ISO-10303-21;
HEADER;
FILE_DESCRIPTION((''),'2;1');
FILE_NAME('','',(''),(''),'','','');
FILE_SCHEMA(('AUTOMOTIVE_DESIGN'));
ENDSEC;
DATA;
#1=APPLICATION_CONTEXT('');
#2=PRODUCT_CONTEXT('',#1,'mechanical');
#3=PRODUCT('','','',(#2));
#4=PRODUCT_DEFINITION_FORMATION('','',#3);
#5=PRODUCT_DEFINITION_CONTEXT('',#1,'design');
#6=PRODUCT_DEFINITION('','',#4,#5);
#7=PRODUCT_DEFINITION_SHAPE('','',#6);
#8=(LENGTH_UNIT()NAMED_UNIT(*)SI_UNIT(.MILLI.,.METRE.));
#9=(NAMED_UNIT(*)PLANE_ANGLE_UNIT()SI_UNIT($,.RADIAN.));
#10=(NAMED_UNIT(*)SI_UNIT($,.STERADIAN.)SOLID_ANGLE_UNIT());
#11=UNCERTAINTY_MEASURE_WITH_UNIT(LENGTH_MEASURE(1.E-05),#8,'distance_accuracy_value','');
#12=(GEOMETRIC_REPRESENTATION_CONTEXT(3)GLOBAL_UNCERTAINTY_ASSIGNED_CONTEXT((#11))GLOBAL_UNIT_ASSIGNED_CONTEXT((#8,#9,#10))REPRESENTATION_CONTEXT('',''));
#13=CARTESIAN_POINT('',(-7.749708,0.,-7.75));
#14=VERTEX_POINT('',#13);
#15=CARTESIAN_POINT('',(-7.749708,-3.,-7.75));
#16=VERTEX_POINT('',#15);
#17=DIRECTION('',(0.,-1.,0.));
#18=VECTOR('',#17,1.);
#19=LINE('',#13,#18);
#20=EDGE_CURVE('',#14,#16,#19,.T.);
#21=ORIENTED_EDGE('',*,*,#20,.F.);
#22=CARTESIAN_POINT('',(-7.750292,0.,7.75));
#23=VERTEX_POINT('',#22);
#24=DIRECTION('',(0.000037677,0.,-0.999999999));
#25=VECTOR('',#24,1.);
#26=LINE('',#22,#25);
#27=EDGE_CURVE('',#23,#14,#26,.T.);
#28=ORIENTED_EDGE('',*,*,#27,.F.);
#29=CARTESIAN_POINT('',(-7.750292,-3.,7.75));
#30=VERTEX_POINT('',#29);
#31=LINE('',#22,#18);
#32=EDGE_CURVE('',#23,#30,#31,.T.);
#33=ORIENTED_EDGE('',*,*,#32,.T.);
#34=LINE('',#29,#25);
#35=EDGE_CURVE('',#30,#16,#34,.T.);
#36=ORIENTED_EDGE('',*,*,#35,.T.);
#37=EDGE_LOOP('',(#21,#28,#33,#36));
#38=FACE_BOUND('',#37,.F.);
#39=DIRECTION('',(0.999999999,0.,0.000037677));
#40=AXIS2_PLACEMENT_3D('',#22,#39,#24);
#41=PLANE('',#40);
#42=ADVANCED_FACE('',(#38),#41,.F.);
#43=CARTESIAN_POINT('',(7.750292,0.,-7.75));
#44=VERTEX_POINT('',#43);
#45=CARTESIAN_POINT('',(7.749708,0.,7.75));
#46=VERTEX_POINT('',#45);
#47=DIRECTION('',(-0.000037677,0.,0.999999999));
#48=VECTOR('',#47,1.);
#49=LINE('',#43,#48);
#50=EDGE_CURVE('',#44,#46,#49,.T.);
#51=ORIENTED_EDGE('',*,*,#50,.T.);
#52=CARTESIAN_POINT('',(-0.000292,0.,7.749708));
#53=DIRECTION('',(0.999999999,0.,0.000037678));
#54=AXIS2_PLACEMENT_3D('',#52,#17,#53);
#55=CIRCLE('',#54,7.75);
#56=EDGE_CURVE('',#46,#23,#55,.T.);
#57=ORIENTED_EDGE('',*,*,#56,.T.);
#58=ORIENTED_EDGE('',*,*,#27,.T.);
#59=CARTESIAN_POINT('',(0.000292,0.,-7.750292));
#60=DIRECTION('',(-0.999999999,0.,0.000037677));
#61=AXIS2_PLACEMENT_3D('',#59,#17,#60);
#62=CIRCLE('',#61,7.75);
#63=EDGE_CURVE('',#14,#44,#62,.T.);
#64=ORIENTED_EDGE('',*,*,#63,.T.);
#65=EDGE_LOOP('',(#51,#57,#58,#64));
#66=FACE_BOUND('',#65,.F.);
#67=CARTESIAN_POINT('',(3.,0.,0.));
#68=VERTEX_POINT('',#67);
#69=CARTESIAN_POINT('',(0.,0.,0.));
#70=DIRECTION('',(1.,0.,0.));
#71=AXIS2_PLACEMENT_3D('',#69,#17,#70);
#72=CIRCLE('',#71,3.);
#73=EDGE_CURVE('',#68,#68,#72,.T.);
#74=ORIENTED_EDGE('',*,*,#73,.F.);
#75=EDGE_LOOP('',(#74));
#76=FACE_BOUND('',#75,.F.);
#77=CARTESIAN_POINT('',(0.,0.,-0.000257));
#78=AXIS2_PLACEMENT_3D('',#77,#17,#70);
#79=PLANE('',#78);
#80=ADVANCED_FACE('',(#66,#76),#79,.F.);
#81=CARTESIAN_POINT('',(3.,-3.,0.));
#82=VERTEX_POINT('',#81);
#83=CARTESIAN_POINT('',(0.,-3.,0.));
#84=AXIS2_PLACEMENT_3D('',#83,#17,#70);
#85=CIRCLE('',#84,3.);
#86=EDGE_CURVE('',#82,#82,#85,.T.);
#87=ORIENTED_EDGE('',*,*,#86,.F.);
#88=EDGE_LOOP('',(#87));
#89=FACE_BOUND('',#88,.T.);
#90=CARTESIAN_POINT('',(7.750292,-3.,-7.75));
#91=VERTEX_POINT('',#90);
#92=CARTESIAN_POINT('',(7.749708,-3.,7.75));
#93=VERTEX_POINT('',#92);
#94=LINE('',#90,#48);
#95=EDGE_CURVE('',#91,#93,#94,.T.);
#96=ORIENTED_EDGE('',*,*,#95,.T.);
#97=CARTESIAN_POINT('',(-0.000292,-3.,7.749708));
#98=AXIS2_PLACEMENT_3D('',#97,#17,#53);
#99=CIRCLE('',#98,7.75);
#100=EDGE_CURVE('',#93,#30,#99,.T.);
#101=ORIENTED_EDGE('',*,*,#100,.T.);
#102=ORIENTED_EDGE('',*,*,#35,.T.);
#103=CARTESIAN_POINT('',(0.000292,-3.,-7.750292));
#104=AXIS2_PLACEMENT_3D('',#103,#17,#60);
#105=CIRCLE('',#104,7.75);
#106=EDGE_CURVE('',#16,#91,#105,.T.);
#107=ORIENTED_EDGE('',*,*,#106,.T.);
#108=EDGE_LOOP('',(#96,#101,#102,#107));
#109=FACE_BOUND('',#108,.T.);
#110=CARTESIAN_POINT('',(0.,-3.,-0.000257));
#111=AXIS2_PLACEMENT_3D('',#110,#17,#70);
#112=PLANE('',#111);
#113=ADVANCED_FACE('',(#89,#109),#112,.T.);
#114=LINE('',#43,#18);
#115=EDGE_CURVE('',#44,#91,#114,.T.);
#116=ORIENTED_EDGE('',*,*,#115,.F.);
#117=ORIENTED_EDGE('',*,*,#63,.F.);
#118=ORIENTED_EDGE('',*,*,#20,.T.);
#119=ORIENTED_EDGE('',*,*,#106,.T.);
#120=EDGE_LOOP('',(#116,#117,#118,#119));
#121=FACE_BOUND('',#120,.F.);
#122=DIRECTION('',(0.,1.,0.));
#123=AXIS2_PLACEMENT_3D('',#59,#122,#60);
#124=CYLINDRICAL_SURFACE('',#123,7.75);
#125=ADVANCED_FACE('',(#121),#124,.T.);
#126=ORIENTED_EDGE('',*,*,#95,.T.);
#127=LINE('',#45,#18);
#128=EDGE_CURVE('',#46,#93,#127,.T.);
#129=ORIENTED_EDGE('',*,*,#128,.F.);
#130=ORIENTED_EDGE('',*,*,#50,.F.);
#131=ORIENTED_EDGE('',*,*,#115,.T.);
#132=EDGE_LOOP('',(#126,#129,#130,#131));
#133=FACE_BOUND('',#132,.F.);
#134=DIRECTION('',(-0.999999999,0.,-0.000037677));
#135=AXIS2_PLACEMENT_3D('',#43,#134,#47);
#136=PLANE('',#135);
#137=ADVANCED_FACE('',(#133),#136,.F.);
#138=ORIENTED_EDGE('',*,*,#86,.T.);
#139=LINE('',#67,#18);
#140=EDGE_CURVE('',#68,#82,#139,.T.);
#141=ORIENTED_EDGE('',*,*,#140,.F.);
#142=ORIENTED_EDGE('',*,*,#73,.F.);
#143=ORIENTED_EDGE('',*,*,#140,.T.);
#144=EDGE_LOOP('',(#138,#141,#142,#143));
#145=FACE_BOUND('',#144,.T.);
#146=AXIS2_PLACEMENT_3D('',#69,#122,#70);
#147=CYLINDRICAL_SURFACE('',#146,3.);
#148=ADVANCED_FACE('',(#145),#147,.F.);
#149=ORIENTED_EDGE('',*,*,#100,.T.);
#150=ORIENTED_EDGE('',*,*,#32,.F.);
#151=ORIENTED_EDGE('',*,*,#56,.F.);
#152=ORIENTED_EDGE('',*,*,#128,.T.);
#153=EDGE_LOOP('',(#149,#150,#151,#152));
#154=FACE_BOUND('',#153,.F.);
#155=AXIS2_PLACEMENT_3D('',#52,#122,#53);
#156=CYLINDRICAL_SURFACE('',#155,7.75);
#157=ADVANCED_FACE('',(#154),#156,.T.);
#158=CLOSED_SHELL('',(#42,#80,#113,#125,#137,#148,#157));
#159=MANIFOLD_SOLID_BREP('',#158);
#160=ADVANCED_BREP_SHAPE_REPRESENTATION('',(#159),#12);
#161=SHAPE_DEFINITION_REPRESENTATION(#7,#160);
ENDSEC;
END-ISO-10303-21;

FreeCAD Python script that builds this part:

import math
import FreeCAD as App
import Part
import Sketcher
from FreeCAD import Vector

doc = App.newDocument("Part")
body = doc.addObject("PartDesign::Body", "Body")

# Sketch on XZ plane
sketch1 = body.newObject("Sketcher::SketchObject", "Sketch")
sketch1.AttachmentSupport = (doc.getObject("XZ_Plane"), [""])
sketch1.MapMode = "FlatFace"
sketch1.addGeometry([
    Part.LineSegment(Vector(-7.8, 7.8, 0), Vector(-7.7, -7.8, 0)),  # 0
    Part.ArcOfCircle(Part.Circle(Vector(0, -7.8, 0), Vector(0, 0, 1), 7.8), math.radians(180), math.radians(360)),  # 1
    Part.LineSegment(Vector(7.8, -7.8, 0), Vector(7.7, 7.8, 0)),  # 2
    Part.ArcOfCircle(Part.Circle(Vector(0, 7.7, 0), Vector(0, 0, 1), 7.8), math.radians(0), math.radians(180)),  # 3
    Part.Circle(Vector(0, 0, 0), Vector(0, 0, 1), 3),  # 4
], False)
sketch1.addConstraint([
    Sketcher.Constraint("Coincident", 0, 2, 1, 1),
    Sketcher.Constraint("Tangent", 1, 2, 2, 1),
    Sketcher.Constraint("Tangent", 2, 2, 3, 1),
    Sketcher.Constraint("Coincident", 3, 2, 0, 1),
    Sketcher.Constraint("Coincident", 4, 3, -1, 1),
    Sketcher.Constraint("Equal", 1, 3),
    Sketcher.Constraint("Symmetric", 0, 2, 2, 2, -1, 1),
    Sketcher.Constraint("Horizontal", 0, 2, 1, 2),
    Sketcher.Constraint("Horizontal", 2, 2, 3, 2),
    Sketcher.Constraint("Diameter", 4, 6.0),
    Sketcher.Constraint("Radius", 1, 7.75),
    Sketcher.Constraint("Distance", 0, 15.5),
    Sketcher.Constraint("DistanceX", -1, 1, 1, 3, 0.000292),
])
pad1 = body.newObject("PartDesign::Pad", "Pad")
pad1.Profile = sketch1
pad1.Length = 3

doc.recompute()
